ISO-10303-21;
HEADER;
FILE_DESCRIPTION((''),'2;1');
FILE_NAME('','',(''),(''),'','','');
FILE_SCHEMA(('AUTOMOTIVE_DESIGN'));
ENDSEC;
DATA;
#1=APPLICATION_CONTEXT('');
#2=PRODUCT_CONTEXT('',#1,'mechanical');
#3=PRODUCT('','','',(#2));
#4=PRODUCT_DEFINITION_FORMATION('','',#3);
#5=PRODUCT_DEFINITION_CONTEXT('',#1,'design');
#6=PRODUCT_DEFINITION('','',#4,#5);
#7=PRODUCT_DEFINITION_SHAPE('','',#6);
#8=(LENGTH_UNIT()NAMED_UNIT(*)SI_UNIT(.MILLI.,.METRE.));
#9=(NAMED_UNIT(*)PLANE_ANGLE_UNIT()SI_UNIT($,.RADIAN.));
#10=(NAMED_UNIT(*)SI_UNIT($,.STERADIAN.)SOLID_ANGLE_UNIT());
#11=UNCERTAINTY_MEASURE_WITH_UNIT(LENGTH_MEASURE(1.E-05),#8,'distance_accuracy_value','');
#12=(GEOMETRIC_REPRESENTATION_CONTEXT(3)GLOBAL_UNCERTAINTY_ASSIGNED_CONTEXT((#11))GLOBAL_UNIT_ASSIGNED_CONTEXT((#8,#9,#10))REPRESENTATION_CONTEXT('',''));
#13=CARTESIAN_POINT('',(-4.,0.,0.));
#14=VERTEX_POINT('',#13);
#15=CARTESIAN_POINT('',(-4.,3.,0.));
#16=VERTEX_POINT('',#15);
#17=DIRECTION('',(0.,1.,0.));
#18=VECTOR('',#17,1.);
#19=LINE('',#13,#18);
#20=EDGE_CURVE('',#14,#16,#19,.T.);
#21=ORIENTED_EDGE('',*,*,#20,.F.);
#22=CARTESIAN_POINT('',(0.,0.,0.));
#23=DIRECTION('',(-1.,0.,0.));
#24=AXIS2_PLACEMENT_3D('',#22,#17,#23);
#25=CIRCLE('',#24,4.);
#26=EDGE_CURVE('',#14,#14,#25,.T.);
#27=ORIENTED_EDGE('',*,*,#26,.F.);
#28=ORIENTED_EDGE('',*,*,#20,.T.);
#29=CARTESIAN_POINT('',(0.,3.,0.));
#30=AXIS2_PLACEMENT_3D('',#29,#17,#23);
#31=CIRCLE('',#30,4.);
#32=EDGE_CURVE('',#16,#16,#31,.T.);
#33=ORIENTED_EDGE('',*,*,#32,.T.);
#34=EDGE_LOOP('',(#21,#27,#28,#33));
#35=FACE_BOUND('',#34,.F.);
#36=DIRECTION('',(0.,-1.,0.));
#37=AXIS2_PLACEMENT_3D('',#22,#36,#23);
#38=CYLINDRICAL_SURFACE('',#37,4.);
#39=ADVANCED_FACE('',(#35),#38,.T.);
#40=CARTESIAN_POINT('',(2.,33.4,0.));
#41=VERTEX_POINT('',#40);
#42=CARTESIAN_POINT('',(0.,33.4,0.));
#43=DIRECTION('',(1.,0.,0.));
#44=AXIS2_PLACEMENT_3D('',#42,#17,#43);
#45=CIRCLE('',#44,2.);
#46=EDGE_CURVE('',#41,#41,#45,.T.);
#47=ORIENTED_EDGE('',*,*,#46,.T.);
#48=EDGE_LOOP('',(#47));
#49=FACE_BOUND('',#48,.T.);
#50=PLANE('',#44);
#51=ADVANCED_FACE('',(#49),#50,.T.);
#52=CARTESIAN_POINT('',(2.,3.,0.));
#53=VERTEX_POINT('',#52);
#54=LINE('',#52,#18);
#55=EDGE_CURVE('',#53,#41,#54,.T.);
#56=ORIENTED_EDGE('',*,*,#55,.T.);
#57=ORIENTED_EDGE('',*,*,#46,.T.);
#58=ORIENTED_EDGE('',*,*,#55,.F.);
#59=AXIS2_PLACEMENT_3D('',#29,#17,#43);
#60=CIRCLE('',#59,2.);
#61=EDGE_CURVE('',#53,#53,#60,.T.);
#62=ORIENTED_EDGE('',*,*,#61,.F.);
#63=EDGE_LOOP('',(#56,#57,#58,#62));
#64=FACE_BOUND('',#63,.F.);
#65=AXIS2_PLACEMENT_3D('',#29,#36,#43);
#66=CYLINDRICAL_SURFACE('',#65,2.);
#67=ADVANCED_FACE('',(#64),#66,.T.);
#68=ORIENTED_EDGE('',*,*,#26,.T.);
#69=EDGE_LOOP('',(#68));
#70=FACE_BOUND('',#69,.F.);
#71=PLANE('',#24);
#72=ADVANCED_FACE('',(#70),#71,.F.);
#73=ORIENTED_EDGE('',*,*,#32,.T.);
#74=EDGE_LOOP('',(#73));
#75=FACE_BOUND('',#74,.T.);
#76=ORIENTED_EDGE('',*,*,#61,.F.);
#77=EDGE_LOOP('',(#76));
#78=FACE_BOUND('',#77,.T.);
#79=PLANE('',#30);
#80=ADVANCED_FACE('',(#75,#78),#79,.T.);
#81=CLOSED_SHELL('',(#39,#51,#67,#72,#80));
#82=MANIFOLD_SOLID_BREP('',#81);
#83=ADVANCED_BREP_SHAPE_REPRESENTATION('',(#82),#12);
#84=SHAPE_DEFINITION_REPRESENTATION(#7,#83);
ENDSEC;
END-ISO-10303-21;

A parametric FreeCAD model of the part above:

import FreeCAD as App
import Part
import Sketcher

V = App.Vector
Q = App.Units.Quantity

doc = App.newDocument("Part")
body = doc.addObject("PartDesign::Body", "Body")

# Sketch on XZ plane
sketch1 = doc.addObject("Sketcher::SketchObject", "Sketch")
body.addObject(sketch1)
sketch1.AttachmentSupport = (doc.XZ_Plane, [""])
sketch1.MapMode = "FlatFace"
sketch1.addGeometry(Part.Circle(V(0, 0, 0), V(0, 0, 1), 4), False)
sketch1.addConstraint([
    Sketcher.Constraint("Coincident", 0, 3, -1, 1),
    Sketcher.Constraint("Diameter", 0, Q("8 mm")),
])
pad1 = doc.addObject("PartDesign::Pad", "Pad")
body.addObject(pad1)
pad1.Profile = sketch1
pad1.Length = 3
pad1.Reversed = True

# Sketch on XZ plane
sketch2 = doc.addObject("Sketcher::SketchObject", "Sketch001")
body.addObject(sketch2)
sketch2.AttachmentSupport = (doc.XZ_Plane, [""])
sketch2.MapMode = "FlatFace"
sketch2.AttachmentOffset = App.Placement(V(0, 0, -3), App.Rotation())
sketch2.addGeometry(Part.Circle(V(0, 0, 0), V(0, 0, 1), 2), False)
sketch2.addConstraint([
    Sketcher.Constraint("Coincident", 0, 3, -1, 1),
    Sketcher.Constraint("Diameter", 0, Q("4 mm")),
])
pad2 = doc.addObject("PartDesign::Pad", "Pad001")
body.addObject(pad2)
pad2.Profile = sketch2
pad2.Length = 30.4
pad2.Reversed = True

doc.recompute()
